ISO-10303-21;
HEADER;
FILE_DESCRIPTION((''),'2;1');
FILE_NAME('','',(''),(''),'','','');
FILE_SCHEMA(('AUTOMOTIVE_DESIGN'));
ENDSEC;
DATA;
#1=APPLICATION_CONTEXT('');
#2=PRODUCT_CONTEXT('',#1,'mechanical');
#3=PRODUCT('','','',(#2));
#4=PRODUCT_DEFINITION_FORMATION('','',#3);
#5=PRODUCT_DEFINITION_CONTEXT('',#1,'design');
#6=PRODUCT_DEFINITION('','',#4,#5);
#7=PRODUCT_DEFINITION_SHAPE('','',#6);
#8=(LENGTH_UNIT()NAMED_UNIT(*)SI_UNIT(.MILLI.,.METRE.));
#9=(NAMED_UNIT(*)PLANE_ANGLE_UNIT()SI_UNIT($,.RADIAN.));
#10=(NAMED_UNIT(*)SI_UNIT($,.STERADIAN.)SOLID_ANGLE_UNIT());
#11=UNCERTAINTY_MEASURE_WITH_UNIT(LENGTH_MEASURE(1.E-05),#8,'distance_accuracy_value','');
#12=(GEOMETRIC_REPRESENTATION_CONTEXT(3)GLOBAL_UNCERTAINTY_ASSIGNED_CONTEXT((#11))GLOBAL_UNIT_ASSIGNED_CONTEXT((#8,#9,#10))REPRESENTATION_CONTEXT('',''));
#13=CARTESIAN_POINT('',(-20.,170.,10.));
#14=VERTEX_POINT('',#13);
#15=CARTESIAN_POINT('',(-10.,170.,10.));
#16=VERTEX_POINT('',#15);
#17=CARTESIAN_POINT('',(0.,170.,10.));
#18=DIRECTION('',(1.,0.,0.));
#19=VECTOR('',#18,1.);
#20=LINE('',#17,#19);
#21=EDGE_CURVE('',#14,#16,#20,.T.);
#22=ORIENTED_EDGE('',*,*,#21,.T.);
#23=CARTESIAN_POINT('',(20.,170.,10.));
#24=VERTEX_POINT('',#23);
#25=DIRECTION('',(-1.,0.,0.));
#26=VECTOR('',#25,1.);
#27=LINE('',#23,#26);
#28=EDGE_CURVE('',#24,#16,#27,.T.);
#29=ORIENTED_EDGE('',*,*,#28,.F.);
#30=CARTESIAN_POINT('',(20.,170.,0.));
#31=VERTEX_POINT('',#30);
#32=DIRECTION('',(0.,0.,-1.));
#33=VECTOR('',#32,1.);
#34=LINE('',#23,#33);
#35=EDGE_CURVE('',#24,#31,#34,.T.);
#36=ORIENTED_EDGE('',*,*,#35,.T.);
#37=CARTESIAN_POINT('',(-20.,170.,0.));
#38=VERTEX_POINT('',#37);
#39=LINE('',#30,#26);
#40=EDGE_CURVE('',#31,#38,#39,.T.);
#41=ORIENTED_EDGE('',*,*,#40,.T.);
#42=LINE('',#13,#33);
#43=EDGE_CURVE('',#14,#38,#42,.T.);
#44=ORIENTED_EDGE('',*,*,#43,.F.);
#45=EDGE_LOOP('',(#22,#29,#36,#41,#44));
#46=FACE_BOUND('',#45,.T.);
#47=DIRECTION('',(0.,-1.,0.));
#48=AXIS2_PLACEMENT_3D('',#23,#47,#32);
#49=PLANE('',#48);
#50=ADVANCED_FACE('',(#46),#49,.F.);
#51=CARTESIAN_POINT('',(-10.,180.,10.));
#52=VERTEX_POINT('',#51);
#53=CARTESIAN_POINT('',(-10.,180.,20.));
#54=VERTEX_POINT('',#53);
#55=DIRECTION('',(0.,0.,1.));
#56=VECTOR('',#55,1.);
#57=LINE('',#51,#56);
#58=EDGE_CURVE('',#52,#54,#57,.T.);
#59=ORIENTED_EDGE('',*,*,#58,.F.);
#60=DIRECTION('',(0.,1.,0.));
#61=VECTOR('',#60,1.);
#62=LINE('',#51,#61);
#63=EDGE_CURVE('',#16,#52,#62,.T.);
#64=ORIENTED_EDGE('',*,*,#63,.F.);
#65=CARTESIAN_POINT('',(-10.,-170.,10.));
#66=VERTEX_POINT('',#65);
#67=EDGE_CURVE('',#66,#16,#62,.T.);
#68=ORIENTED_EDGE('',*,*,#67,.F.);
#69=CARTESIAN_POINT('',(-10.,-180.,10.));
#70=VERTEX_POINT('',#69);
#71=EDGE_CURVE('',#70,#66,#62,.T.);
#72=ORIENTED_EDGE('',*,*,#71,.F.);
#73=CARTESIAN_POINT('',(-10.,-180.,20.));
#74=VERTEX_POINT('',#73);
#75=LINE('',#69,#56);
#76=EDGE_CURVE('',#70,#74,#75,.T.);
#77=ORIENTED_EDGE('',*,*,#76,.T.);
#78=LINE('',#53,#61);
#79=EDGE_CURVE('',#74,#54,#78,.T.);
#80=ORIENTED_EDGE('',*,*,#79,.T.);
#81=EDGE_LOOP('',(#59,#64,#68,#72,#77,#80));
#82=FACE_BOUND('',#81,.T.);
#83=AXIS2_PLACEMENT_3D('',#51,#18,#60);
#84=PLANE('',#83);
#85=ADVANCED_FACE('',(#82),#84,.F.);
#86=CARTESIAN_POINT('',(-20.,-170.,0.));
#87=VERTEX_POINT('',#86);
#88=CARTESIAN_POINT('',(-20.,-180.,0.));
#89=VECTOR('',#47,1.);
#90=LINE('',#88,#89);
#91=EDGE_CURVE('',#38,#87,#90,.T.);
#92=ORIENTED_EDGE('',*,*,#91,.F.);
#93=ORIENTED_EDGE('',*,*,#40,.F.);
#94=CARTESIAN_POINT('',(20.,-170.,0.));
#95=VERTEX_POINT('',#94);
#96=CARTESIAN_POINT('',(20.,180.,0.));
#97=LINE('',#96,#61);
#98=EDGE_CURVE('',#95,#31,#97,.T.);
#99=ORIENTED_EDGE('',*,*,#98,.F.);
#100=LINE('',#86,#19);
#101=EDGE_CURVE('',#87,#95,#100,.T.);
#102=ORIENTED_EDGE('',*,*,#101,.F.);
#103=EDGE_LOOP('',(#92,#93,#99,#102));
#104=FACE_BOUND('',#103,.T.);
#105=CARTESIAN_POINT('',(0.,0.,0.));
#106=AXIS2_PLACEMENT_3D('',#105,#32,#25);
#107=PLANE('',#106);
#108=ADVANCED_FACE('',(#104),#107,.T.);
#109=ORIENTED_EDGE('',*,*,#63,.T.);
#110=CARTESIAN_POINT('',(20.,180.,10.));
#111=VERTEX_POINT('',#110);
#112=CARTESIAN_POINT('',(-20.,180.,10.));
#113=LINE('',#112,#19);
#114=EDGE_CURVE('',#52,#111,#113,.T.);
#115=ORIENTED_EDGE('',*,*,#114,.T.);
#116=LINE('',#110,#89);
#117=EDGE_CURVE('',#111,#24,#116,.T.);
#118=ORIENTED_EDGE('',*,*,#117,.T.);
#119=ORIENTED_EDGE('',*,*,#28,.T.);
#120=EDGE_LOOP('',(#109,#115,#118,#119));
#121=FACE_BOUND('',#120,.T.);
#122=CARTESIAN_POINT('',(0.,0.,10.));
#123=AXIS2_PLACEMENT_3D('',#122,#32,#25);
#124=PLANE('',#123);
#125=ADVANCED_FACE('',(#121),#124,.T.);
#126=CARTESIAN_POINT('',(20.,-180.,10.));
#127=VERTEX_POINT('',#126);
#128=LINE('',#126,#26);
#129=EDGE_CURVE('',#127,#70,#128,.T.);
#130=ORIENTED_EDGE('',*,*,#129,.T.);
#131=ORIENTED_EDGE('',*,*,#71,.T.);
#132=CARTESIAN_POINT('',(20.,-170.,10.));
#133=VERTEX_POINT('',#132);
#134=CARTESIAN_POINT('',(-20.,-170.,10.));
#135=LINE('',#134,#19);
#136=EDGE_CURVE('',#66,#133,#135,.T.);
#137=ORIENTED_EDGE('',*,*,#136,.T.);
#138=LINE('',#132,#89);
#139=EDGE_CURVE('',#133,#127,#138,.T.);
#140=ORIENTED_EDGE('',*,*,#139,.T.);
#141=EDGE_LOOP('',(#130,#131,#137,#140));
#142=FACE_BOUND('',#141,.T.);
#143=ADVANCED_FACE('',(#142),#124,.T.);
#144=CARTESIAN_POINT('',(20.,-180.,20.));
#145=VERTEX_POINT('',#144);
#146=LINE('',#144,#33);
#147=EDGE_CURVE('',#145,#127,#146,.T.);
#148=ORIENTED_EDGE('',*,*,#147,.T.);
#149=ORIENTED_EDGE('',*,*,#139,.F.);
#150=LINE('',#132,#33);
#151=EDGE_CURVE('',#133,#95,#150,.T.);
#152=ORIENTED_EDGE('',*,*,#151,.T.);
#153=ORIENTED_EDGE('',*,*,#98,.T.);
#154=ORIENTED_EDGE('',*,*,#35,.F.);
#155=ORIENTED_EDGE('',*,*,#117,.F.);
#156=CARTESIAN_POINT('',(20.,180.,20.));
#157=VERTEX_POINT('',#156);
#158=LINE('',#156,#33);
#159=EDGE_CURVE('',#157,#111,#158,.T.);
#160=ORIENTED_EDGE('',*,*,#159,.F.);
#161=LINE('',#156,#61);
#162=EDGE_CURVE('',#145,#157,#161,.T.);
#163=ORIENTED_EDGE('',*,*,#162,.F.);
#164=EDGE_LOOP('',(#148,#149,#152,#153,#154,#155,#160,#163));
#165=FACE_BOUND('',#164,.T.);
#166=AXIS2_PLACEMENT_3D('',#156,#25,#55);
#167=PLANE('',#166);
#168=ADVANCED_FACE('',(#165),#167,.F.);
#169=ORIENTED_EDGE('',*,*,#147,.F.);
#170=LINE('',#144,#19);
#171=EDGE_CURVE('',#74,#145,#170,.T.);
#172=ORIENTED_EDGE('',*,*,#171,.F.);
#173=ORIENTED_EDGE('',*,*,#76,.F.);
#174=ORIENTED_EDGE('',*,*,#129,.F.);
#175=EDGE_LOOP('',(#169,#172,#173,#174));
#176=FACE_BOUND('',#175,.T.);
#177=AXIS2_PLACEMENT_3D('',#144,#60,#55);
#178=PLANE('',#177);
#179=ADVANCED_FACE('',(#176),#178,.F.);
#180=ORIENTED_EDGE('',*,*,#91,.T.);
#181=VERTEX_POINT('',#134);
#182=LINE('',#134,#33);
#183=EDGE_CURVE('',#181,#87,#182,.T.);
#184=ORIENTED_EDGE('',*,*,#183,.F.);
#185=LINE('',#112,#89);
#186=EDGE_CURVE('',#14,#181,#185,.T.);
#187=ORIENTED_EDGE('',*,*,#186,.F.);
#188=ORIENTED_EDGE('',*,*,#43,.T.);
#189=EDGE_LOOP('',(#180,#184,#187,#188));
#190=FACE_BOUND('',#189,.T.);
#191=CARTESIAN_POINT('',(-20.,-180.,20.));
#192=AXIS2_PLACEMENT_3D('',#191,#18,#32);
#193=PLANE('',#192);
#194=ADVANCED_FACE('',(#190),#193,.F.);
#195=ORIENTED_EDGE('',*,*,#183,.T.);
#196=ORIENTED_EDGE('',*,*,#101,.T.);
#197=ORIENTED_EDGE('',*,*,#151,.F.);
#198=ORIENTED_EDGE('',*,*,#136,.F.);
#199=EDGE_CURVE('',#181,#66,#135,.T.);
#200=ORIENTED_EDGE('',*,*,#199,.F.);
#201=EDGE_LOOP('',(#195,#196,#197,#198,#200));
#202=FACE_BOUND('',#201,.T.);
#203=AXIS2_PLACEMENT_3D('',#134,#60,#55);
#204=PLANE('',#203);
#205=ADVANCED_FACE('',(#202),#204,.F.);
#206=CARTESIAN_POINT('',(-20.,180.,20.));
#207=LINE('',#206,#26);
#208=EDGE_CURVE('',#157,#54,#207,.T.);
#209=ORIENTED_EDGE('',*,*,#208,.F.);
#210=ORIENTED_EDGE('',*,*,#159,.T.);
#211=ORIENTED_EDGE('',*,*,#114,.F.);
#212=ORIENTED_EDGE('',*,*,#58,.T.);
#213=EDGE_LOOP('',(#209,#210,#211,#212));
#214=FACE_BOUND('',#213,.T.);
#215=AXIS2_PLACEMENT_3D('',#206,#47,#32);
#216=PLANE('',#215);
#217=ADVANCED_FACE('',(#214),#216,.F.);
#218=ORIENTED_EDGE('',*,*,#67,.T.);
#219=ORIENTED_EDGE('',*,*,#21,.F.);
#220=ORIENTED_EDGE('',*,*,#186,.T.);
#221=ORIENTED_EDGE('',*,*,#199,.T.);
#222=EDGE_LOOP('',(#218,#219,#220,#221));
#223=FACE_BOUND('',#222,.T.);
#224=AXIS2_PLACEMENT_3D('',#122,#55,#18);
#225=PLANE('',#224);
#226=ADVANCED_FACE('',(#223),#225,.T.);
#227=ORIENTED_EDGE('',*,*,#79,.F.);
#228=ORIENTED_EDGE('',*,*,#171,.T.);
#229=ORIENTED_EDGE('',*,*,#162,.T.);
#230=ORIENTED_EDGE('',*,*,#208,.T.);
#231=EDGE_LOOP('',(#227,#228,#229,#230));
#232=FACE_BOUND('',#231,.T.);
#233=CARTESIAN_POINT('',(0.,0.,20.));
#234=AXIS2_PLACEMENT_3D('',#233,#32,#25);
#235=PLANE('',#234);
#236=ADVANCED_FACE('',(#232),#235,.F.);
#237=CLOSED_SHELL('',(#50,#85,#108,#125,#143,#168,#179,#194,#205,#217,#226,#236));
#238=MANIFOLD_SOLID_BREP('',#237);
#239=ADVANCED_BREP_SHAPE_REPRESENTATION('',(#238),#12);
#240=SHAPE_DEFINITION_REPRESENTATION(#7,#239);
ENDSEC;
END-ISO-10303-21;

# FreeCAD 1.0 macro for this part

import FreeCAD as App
import Part
import Sketcher

V = App.Vector
Q = App.Units.Quantity

doc = App.newDocument("Part")
body = doc.addObject("PartDesign::Body", "Body")

# Sketch on XY plane
sketch1 = body.newObject("Sketcher::SketchObject", "Sketch")
sketch1.AttachmentSupport = (doc.getObject("XY_Plane"), [""])
sketch1.MapMode = "FlatFace"
sketch1.addGeometry(Part.LineSegment(V(-20, 180, 0), V(-20, -180, 0)), False)
sketch1.addGeometry(Part.LineSegment(V(-20, -180, 0), V(20, -180, 0)), False)
sketch1.addGeometry(Part.LineSegment(V(20, -180, 0), V(20, 180, 0)), False)
sketch1.addGeometry(Part.LineSegment(V(20, 180, 0), V(-20, 180, 0)), False)
sketch1.addConstraint(Sketcher.Constraint("Coincident", 0, 2, 1, 1))
sketch1.addConstraint(Sketcher.Constraint("Coincident", 1, 2, 2, 1))
sketch1.addConstraint(Sketcher.Constraint("Coincident", 2, 2, 3, 1))
sketch1.addConstraint(Sketcher.Constraint("Coincident", 3, 2, 0, 1))
sketch1.addConstraint(Sketcher.Constraint("Vertical", 0))
sketch1.addConstraint(Sketcher.Constraint("Horizontal", 1))
sketch1.addConstraint(Sketcher.Constraint("Vertical", 2))
sketch1.addConstraint(Sketcher.Constraint("Horizontal", 3))
sketch1.addConstraint(Sketcher.Constraint("Symmetric", 0, 2, 2, 2, -1, 1))
sketch1.addConstraint(Sketcher.Constraint("DistanceX", 1, 1, 1, 2, Q("40 mm")))
sketch1.addConstraint(Sketcher.Constraint("DistanceY", 0, 2, 0, 1, Q("360 mm")))
pad1 = body.newObject("PartDesign::Pad", "Pad")
pad1.Profile = sketch1
pad1.Length = 20

# Sketch on XY plane
sketch2 = body.newObject("Sketcher::SketchObject", "Sketch001")
sketch2.AttachmentSupport = (doc.getObject("XY_Plane"), [""])
sketch2.MapMode = "FlatFace"
sketch2.AttachmentOffset = App.Placement(V(0, 0, 20), App.Rotation())
sketch2.addGeometry(Part.LineSegment(V(-20, 180, 0), V(-20, -180, 0)), False)
sketch2.addGeometry(Part.LineSegment(V(-20, -180, 0), V(-10, -180, 0)), False)
sketch2.addGeometry(Part.LineSegment(V(-10, -180, 0), V(-10, 180, 0)), False)
sketch2.addGeometry(Part.LineSegment(V(-10, 180, 0), V(-20, 180, 0)), False)
sketch2.addConstraint(Sketcher.Constraint("Coincident", 0, 2, 1, 1))
sketch2.addConstraint(Sketcher.Constraint("Coincident", 1, 2, 2, 1))
sketch2.addConstraint(Sketcher.Constraint("Coincident", 2, 2, 3, 1))
sketch2.addConstraint(Sketcher.Constraint("Coincident", 3, 2, 0, 1))
sketch2.addConstraint(Sketcher.Constraint("Vertical", 0))
sketch2.addConstraint(Sketcher.Constraint("Horizontal", 1))
sketch2.addConstraint(Sketcher.Constraint("Vertical", 2))
sketch2.addConstraint(Sketcher.Constraint("Horizontal", 3))
sketch2.addConstraint(Sketcher.Constraint("DistanceX", 1, 1, 1, 2, Q("10 mm")))
sketch2.addConstraint(Sketcher.Constraint("DistanceY", 0, 2, 0, 1, Q("360 mm")))
sketch2.addConstraint(Sketcher.Constraint("DistanceX", 0, 2, -1, 1, Q("20 mm")))
sketch2.addConstraint(Sketcher.Constraint("DistanceY", 0, 2, -1, 1, Q("180 mm")))
pocket1 = body.newObject("PartDesign::Pocket", "Pocket")
pocket1.Profile = sketch2
pocket1.Length = 10

# Sketch on XY plane
sketch3 = body.newObject("Sketcher::SketchObject", "Sketch002")
sketch3.AttachmentSupport = (doc.getObject("XY_Plane"), [""])
sketch3.MapMode = "FlatFace"
sketch3.addGeometry(Part.LineSegment(V(20, 180, 0), V(20, 170, 0)), False)
sketch3.addGeometry(Part.LineSegment(V(20, 170, 0), V(-20, 170, 0)), False)
sketch3.addGeometry(Part.LineSegment(V(-20, 170, 0), V(-20, 180, 0)), False)
sketch3.addGeometry(Part.LineSegment(V(-20, 180, 0), V(20, 180, 0)), False)
sketch3.addGeometry(Part.LineSegment(V(20, -170, 0), V(20, -180, 0)), False)
sketch3.addGeometry(Part.LineSegment(V(20, -180, 0), V(-20, -180, 0)), False)
sketch3.addGeometry(Part.LineSegment(V(-20, -180, 0), V(-20, -170, 0)), False)
sketch3.addGeometry(Part.LineSegment(V(-20, -170, 0), V(20, -170, 0)), False)
sketch3.addConstraint(Sketcher.Constraint("Coincident", 0, 2, 1, 1))
sketch3.addConstraint(Sketcher.Constraint("Coincident", 1, 2, 2, 1))
sketch3.addConstraint(Sketcher.Constraint("Coincident", 2, 2, 3, 1))
sketch3.addConstraint(Sketcher.Constraint("Coincident", 3, 2, 0, 1))
sketch3.addConstraint(Sketcher.Constraint("Coincident", 4, 2, 5, 1))
sketch3.addConstraint(Sketcher.Constraint("Coincident", 5, 2, 6, 1))
sketch3.addConstraint(Sketcher.Constraint("Coincident", 6, 2, 7, 1))
sketch3.addConstraint(Sketcher.Constraint("Coincident", 7, 2, 4, 1))
sketch3.addConstraint(Sketcher.Constraint("Vertical", 0))
sketch3.addConstraint(Sketcher.Constraint("Horizontal", 1))
sketch3.addConstraint(Sketcher.Constraint("Vertical", 2))
sketch3.addConstraint(Sketcher.Constraint("Horizontal", 3))
sketch3.addConstraint(Sketcher.Constraint("Vertical", 4))
sketch3.addConstraint(Sketcher.Constraint("Horizontal", 5))
sketch3.addConstraint(Sketcher.Constraint("Vertical", 6))
sketch3.addConstraint(Sketcher.Constraint("Horizontal", 7))
sketch3.addConstraint(Sketcher.Constraint("Symmetric", 2, 2, 4, 2, -1, 1))
sketch3.addConstraint(Sketcher.Constraint("Symmetric", 0, 2, 6, 2, -1, 1))
sketch3.addConstraint(Sketcher.Constraint("Vertical", 3, 2, 4, 2))
sketch3.addConstraint(Sketcher.Constraint("DistanceX", 1, 2, 1, 1, Q("40 mm")))
sketch3.addConstraint(Sketcher.Constraint("DistanceY", 0, 2, 0, 1, Q("10 mm")))
sketch3.addConstraint(Sketcher.Constraint("DistanceY", -1, 1, 0, 2, Q("170 mm")))
pocket2 = body.newObject("PartDesign::Pocket", "Pocket001")
pocket2.Profile = sketch3
pocket2.Length = 10
pocket2.Reversed = True

doc.recompute()
